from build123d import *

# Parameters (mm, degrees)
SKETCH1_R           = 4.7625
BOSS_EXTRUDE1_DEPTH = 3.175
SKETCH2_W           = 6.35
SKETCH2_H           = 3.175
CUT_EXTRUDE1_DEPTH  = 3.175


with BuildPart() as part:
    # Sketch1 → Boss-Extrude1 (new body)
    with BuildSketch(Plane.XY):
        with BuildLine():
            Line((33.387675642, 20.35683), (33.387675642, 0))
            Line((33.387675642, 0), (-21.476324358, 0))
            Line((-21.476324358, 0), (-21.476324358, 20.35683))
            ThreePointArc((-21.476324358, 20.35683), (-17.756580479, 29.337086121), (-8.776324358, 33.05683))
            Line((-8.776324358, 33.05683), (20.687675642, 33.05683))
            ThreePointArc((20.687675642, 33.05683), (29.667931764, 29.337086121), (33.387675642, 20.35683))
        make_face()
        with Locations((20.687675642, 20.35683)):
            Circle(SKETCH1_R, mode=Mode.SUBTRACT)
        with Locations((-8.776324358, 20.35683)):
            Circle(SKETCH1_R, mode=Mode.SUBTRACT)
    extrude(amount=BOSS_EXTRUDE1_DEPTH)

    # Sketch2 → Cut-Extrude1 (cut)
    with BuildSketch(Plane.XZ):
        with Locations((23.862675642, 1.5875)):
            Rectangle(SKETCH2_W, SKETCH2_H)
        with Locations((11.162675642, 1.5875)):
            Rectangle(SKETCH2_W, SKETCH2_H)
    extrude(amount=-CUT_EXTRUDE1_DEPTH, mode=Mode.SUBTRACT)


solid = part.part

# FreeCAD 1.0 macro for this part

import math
import FreeCAD as App
import Part
import Sketcher
Q = App.Units.Quantity


def add_polygon(sketch, points):
    """Adds a closed chain of lines whose ends are joined by coincident constraints."""
    first, n = sketch.GeometryCount, len(points)
    for a, b in zip(points, points[1:] + points[:1]):
        sketch.addGeometry(Part.LineSegment(App.Vector(*a, 0), App.Vector(*b, 0)), False)
    for i in range(n):
        sketch.addConstraint(Sketcher.Constraint("Coincident", first + i, 2, first + (i + 1) % n, 1))

doc = App.newDocument("Part")
body = doc.addObject("PartDesign::Body", "Body")

# Sketch on XY plane
sketch1 = body.newObject("Sketcher::SketchObject", "Sketch")
sketch1.AttachmentSupport = (doc.getObject("XY_Plane"), [""])
sketch1.MapMode = "FlatFace"
sketch1.addGeometry([
    Part.LineSegment(App.Vector(33.4, 0, 0), App.Vector(33.4, 20.4, 0)),  # 0
    Part.ArcOfCircle(Part.Circle(App.Vector(20.7, 20.4, 0), App.Vector(0, 0, 1), 12.7), math.radians(0), math.radians(90)),  # 1
    Part.LineSegment(App.Vector(20.7, 33.1, 0), App.Vector(-8.8, 33.1, 0)),  # 2
    Part.ArcOfCircle(Part.Circle(App.Vector(-8.8, 20.4, 0), App.Vector(0, 0, 1), 12.7), math.radians(90), math.radians(180)),  # 3
    Part.LineSegment(App.Vector(-21.5, 20.4, 0), App.Vector(-21.5, 0, 0)),  # 4
    Part.LineSegment(App.Vector(-21.5, 0, 0), App.Vector(33.4, 0, 0)),  # 5
    Part.Circle(App.Vector(20.7, 20.4, 0), App.Vector(0, 0, 1), 4.8),  # 6
    Part.Circle(App.Vector(-8.8, 20.4, 0), App.Vector(0, 0, 1), 4.8),  # 7
], False)
sketch1.addConstraint([
    Sketcher.Constraint("Tangent", 0, 2, 1, 1),
    Sketcher.Constraint("Tangent", 1, 2, 2, 1),
    Sketcher.Constraint("Tangent", 2, 2, 3, 1),
    Sketcher.Constraint("Tangent", 3, 2, 4, 1),
    Sketcher.Constraint("Coincident", 4, 2, 5, 1),
    Sketcher.Constraint("Coincident", 5, 2, 0, 1),
    Sketcher.Constraint("Vertical", 0),
    Sketcher.Constraint("Horizontal", 2),
    Sketcher.Constraint("Vertical", 4),
    Sketcher.Constraint("Horizontal", 5),
    Sketcher.Constraint("Coincident", 6, 3, 1, 3),
    Sketcher.Constraint("Coincident", 7, 3, 3, 3),
    Sketcher.Constraint("Equal", 1, 3),
    Sketcher.Constraint("Equal", 6, 7),
    Sketcher.Constraint("PointOnObject", 4, 2, -1),
    Sketcher.Constraint("Radius", 1, Q("0.5 in")),
    Sketcher.Constraint("Diameter", 6, Q("0.375 in")),
    Sketcher.Constraint("DistanceX", 2, 2, 2, 1, Q("1.16 in")),
    Sketcher.Constraint("DistanceY", 0, 1, 0, 2, Q("20.35683 mm")),
    Sketcher.Constraint("DistanceX", -1, 1, 1, 3, Q("20.687676 mm")),
])
pad1 = body.newObject("PartDesign::Pad", "Pad")
pad1.Profile = sketch1
pad1.Length = Q("0.125 in")

# Sketch on XZ plane
sketch2 = body.newObject("Sketcher::SketchObject", "Sketch001")
sketch2.AttachmentSupport = (doc.getObject("XZ_Plane"), [""])
sketch2.MapMode = "FlatFace"
add_polygon(sketch2, [(20.7, 3.2), (20.7, 0), (27, 0), (27, 3.2)])  # lines 0-3
add_polygon(sketch2, [(8, 3.2), (8, 0), (14.3, 0), (14.3, 3.2)])  # lines 4-7
sketch2.addConstraint([
    Sketcher.Constraint("Vertical", 0),
    Sketcher.Constraint("Horizontal", 1),
    Sketcher.Constraint("Vertical", 2),
    Sketcher.Constraint("Horizontal", 3),
    Sketcher.Constraint("Vertical", 4),
    Sketcher.Constraint("Horizontal", 5),
    Sketcher.Constraint("Vertical", 6),
    Sketcher.Constraint("Horizontal", 7),
    Sketcher.Constraint("PointOnObject", 0, 2, -1),
    Sketcher.Constraint("PointOnObject", 4, 2, -1),
    Sketcher.Constraint("Horizontal", 3, 2, 6, 2),
    Sketcher.Constraint("Equal", 3, 5),
    Sketcher.Constraint("DistanceX", 1, 1, 1, 2, Q("0.25 in")),
    Sketcher.Constraint("DistanceX", 4, 2, 0, 2, Q("0.5 in")),
    Sketcher.Constraint("DistanceY", 0, 2, 0, 1, Q("0.125 in")),
    Sketcher.Constraint("DistanceX", -1, 1, 0, 2, Q("20.687676 mm")),
])
pocket1 = body.newObject("PartDesign::Pocket", "Pocket")
pocket1.Profile = sketch2
pocket1.Length = Q("0.125 in")

doc.recompute()
